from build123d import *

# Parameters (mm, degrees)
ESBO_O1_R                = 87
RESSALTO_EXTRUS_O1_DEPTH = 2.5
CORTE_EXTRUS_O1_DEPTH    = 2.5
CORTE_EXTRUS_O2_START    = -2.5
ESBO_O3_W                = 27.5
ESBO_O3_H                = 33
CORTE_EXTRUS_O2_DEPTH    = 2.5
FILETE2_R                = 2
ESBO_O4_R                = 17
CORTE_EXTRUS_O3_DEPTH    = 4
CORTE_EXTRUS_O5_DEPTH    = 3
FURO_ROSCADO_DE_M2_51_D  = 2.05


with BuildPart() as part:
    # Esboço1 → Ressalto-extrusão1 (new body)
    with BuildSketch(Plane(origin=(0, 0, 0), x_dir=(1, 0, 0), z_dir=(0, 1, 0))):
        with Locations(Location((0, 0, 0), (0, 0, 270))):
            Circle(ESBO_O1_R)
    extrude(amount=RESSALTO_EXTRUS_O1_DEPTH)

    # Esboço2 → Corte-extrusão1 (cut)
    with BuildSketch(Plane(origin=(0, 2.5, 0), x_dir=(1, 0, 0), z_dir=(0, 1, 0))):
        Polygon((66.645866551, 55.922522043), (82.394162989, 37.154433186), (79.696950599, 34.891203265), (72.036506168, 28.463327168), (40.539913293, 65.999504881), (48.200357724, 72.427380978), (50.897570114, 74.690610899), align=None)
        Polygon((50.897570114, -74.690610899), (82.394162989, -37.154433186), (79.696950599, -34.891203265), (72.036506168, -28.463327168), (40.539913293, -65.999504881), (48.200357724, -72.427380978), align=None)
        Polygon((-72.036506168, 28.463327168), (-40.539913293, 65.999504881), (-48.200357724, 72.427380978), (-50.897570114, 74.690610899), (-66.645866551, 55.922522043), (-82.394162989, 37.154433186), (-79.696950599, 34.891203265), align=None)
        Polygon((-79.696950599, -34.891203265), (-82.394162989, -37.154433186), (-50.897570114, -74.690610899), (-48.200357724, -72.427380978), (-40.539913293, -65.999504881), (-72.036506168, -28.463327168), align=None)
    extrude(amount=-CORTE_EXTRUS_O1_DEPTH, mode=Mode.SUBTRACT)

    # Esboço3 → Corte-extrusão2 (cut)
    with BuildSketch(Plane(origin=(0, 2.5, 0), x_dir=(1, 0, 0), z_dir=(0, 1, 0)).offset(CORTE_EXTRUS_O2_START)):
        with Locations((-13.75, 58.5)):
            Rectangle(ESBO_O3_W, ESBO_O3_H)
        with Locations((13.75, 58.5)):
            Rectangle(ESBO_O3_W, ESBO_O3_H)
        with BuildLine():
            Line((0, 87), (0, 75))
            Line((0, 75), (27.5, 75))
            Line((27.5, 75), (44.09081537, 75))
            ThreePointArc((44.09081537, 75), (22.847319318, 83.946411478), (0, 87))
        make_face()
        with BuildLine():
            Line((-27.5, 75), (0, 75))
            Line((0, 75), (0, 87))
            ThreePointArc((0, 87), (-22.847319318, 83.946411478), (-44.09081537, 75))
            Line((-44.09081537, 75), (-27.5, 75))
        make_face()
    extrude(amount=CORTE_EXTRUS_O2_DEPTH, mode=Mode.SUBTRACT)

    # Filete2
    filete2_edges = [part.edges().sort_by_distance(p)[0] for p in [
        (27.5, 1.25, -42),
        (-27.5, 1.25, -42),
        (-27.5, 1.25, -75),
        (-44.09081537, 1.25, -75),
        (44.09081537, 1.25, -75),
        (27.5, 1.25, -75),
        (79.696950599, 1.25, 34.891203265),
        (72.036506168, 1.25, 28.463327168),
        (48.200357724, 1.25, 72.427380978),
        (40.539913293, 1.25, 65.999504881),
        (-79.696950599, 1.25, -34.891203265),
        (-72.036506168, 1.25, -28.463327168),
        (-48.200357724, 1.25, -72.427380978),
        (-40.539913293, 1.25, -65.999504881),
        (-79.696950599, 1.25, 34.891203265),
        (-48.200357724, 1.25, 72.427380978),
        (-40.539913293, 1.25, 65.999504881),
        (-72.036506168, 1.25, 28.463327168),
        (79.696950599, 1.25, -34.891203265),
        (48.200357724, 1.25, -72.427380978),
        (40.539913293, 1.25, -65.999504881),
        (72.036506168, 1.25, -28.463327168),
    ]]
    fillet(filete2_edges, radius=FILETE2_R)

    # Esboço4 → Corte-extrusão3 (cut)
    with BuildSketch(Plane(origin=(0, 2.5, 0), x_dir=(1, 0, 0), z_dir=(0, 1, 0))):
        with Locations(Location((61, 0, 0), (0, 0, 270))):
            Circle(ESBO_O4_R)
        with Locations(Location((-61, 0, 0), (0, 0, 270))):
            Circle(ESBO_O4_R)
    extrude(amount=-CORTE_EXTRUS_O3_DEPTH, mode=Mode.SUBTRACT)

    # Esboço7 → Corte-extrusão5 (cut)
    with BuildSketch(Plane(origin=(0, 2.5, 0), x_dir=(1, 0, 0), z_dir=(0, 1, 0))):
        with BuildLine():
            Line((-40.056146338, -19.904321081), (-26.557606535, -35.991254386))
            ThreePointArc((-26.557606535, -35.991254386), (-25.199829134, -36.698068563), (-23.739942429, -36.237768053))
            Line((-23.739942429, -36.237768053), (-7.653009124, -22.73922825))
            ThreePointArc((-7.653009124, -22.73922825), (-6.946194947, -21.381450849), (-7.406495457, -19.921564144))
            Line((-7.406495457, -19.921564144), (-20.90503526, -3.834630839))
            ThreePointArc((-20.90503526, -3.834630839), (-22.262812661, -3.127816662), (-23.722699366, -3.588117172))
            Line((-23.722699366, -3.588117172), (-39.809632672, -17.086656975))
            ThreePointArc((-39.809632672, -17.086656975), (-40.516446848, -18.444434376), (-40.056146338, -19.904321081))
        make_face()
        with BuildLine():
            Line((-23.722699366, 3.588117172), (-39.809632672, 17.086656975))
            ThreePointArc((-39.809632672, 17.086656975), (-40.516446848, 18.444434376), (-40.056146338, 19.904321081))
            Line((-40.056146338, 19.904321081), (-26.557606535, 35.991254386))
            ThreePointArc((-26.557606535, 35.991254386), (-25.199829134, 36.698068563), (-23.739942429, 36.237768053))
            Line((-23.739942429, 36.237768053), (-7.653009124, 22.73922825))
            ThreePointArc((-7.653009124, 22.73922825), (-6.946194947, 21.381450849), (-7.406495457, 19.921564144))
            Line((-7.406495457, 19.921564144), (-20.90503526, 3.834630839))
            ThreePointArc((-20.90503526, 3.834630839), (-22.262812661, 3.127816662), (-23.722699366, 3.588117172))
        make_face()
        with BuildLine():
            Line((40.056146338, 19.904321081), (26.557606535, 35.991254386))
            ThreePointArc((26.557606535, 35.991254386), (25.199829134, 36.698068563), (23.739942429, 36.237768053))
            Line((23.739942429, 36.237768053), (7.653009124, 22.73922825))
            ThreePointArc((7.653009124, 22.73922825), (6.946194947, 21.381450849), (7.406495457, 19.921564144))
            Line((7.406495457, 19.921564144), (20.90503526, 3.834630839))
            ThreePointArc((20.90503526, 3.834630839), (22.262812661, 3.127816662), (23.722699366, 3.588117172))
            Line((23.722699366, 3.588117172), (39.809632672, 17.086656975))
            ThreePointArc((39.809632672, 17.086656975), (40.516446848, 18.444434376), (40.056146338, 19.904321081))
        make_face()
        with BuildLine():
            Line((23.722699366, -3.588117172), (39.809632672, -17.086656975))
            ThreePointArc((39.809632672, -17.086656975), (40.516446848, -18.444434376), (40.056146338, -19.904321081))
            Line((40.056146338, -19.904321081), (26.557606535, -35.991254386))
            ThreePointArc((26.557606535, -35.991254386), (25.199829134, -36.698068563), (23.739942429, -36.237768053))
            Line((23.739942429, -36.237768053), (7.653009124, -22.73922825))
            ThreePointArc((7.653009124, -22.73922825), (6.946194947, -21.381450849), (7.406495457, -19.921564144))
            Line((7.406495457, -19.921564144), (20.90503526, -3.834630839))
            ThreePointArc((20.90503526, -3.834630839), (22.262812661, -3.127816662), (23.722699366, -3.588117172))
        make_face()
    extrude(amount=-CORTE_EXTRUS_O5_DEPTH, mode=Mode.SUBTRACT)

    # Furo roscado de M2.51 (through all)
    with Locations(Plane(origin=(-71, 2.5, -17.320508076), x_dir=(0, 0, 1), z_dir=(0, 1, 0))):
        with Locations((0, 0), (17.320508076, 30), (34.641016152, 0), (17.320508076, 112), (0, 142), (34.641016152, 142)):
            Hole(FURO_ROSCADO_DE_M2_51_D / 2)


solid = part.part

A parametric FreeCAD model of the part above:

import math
import FreeCAD as App
import Part
import Sketcher
Q = App.Units.Quantity


def edges_at(feature, points):
    """Names of the edges that pass closest to the given points."""
    edges = feature.Shape.Edges
    near = lambda p: min(range(len(edges)), key=lambda i: edges[i].distToShape(Part.Vertex(*p))[0])
    return sorted({f"Edge{near(p) + 1}" for p in points})


def add_polygon(sketch, points):
    """Adds a closed chain of lines whose ends are joined by coincident constraints."""
    first, n = sketch.GeometryCount, len(points)
    for a, b in zip(points, points[1:] + points[:1]):
        sketch.addGeometry(Part.LineSegment(App.Vector(*a, 0), App.Vector(*b, 0)), False)
    for i in range(n):
        sketch.addConstraint(Sketcher.Constraint("Coincident", first + i, 2, first + (i + 1) % n, 1))

doc = App.newDocument("Part")
body = doc.addObject("PartDesign::Body", "Body")

# Sketch on XZ plane
sketch1 = doc.addObject("Sketcher::SketchObject", "Sketch")
body.addObject(sketch1)
sketch1.AttachmentSupport = (doc.XZ_Plane, [""])
sketch1.MapMode = "FlatFace"
sketch1.addGeometry(Part.Circle(App.Vector(0, 0, 0), App.Vector(0, 0, 1), 87), False)
sketch1.addConstraint([
    Sketcher.Constraint("Coincident", 0, 3, -1, 1),
    Sketcher.Constraint("Diameter", 0, 174.0),
])
pad1 = doc.addObject("PartDesign::Pad", "Pad")
body.addObject(pad1)
pad1.Profile = sketch1
pad1.Length = 2.5
pad1.Reversed = True

# Sketch on XZ plane
sketch2 = doc.addObject("Sketcher::SketchObject", "Sketch001")
body.addObject(sketch2)
sketch2.AttachmentSupport = (doc.XZ_Plane, [""])
sketch2.MapMode = "FlatFace"
sketch2.AttachmentOffset = App.Placement(App.Vector(0, 0, -2.5), App.Rotation())
add_polygon(sketch2, [(82.4, -37.2), (66.6, -55.9), (50.9, -74.7), (48.2, -72.4), (40.5, -66), (72, -28.5), (79.7, -34.9)])  # lines 0-6
add_polygon(sketch2, [(50.9, 74.7), (82.4, 37.2), (79.7, 34.9), (72, 28.5), (40.5, 66), (48.2, 72.4)])  # lines 7-12
add_polygon(sketch2, [(-72, -28.5), (-40.5, -66), (-48.2, -72.4), (-50.9, -74.7), (-66.6, -55.9), (-82.4, -37.2), (-79.7, -34.9)])  # lines 13-19
add_polygon(sketch2, [(-79.7, 34.9), (-82.4, 37.2), (-50.9, 74.7), (-48.2, 72.4), (-40.5, 66), (-72, 28.5)])  # lines 20-25
sketch2.addConstraint([
    Sketcher.Constraint("Symmetric", 10, 2, 13, 2, -1, 1),
    Sketcher.Constraint("Symmetric", 11, 2, 14, 2, -1, 1),
    Sketcher.Constraint("Symmetric", 12, 2, 15, 2, -1, 1),
    Sketcher.Constraint("Symmetric", 7, 2, 17, 2, -1, 1),
    Sketcher.Constraint("Symmetric", 8, 2, 18, 2, -1, 1),
    Sketcher.Constraint("Symmetric", 9, 2, 19, 2, -1, 1),
    Sketcher.Constraint("Symmetric", 6, 2, 20, 2, -1, 1),
    Sketcher.Constraint("Symmetric", 1, 2, 21, 2, -1, 1),
    Sketcher.Constraint("Symmetric", 2, 2, 22, 2, -1, 1),
    Sketcher.Constraint("Symmetric", 3, 2, 23, 2, -1, 1),
    Sketcher.Constraint("Symmetric", 4, 2, 24, 2, -1, 1),
    Sketcher.Constraint("Symmetric", 5, 2, 25, 2, -1, 1),
    Sketcher.Constraint("Symmetric", 3, 2, 13, 2, -2),
    Sketcher.Constraint("Symmetric", 2, 2, 14, 2, -2),
    Sketcher.Constraint("Symmetric", 1, 2, 15, 2, -2),
    Sketcher.Constraint("Symmetric", 0, 2, 16, 2, -2),
    Sketcher.Constraint("Symmetric", 6, 2, 17, 2, -2),
    Sketcher.Constraint("Symmetric", 5, 2, 18, 2, -2),
    Sketcher.Constraint("Symmetric", 4, 2, 19, 2, -2),
    Sketcher.Constraint("Parallel", 0, 1),
    Sketcher.Constraint("Perpendicular", 1, 2),
    Sketcher.Constraint("Parallel", 2, 3),
    Sketcher.Constraint("Perpendicular", 3, 4),
    Sketcher.Constraint("Perpendicular", 4, 5),
    Sketcher.Constraint("Parallel", 5, 6),
    Sketcher.Constraint("Equal", 0, 1),
    Sketcher.Constraint("Equal", 3, 5),
    Sketcher.Constraint("Angle", 0, Q("-130 deg")),
    Sketcher.Constraint("Distance", 3, 10.0),
    Sketcher.Constraint("Distance", 4, 49.0),
    Sketcher.Constraint("Distance", 2, 3.520961),
    Sketcher.Constraint("DistanceX", -1, 1, 1, 2, 50.89757),
    Sketcher.Constraint("DistanceY", 1, 2, -1, 1, 74.690611),
])
pocket1 = doc.addObject("PartDesign::Pocket", "Pocket")
body.addObject(pocket1)
pocket1.Profile = sketch2
pocket1.Length = 2.5
pocket1.Reversed = True

# Sketch on XZ plane
sketch3 = doc.addObject("Sketcher::SketchObject", "Sketch002")
body.addObject(sketch3)
sketch3.AttachmentSupport = (doc.XZ_Plane, [""])
sketch3.MapMode = "FlatFace"
sketch3.addGeometry([
    Part.LineSegment(App.Vector(-28, -75, 0), App.Vector(-28, -42, 0)),  # 0
    Part.LineSegment(App.Vector(-28, -42, 0), App.Vector(28, -42, 0)),  # 1
    Part.LineSegment(App.Vector(28, -42, 0), App.Vector(28, -75, 0)),  # 2
    Part.LineSegment(App.Vector(28, -75, 0), App.Vector(44, -75, 0)),  # 3
    Part.ArcOfCircle(Part.Circle(App.Vector(0, 0, 0), App.Vector(0, 0, 1), 87), math.radians(-90), math.radians(-60)),  # 4
    Part.ArcOfCircle(Part.Circle(App.Vector(0, 0, 0), App.Vector(0, 0, 1), 87), math.radians(-120), math.radians(-90)),  # 5
    Part.LineSegment(App.Vector(-44, -75, 0), App.Vector(-28, -75, 0)),  # 6
], False)
sketch3.addConstraint([
    Sketcher.Constraint("Coincident", 0, 2, 1, 1),
    Sketcher.Constraint("Coincident", 1, 2, 2, 1),
    Sketcher.Constraint("Coincident", 2, 2, 3, 1),
    Sketcher.Constraint("Coincident", 3, 2, 4, 2),
    Sketcher.Constraint("Tangent", 4, 1, 5, 2),
    Sketcher.Constraint("Coincident", 5, 1, 6, 1),
    Sketcher.Constraint("Coincident", 6, 2, 0, 1),
    Sketcher.Constraint("Vertical", 0),
    Sketcher.Constraint("Horizontal", 1),
    Sketcher.Constraint("Vertical", 2),
    Sketcher.Constraint("Horizontal", 3),
    Sketcher.Constraint("Horizontal", 6),
    Sketcher.Constraint("Coincident", 4, 3, -1, 1),
    Sketcher.Constraint("Equal", 4, 5),
    Sketcher.Constraint("Symmetric", 2, 2, 6, 2, -2),
    Sketcher.Constraint("PointOnObject", 4, 1, -2),
    Sketcher.Constraint("Radius", 4, 87.0),
    Sketcher.Constraint("DistanceX", 1, 1, 1, 2, 55.0),
    Sketcher.Constraint("DistanceY", 0, 1, 0, 2, 33.0),
    Sketcher.Constraint("DistanceY", 0, 2, -1, 1, 42.0),
])
pocket2 = doc.addObject("PartDesign::Pocket", "Pocket001")
body.addObject(pocket2)
pocket2.Profile = sketch3
pocket2.Length = 2.5
doc.recompute()

fillet = doc.addObject("PartDesign::Fillet", "Fillet")
body.addObject(fillet)
fillet.Base = (pocket2, edges_at(pocket2, [
    (27.5, 1.25, -42),
    (-27.5, 1.25, -42),
    (-27.5, 1.25, -75),
    (-44.091, 1.25, -75),
    (44.091, 1.25, -75),
    (27.5, 1.25, -75),
    (79.697, 1.25, 34.891),
    (72.037, 1.25, 28.463),
    (48.2, 1.25, 72.427),
    (40.54, 1.25, 66),
    (-79.697, 1.25, -34.891),
    (-72.037, 1.25, -28.463),
    (-48.2, 1.25, -72.427),
    (-40.54, 1.25, -66),
    (-79.697, 1.25, 34.891),
    (-48.2, 1.25, 72.427),
    (-40.54, 1.25, 66),
    (-72.037, 1.25, 28.463),
    (79.697, 1.25, -34.891),
    (48.2, 1.25, -72.427),
    (40.54, 1.25, -66),
    (72.037, 1.25, -28.463),
]))
fillet.Radius = 2

# Sketch on XZ plane
sketch4 = doc.addObject("Sketcher::SketchObject", "Sketch003")
body.addObject(sketch4)
sketch4.AttachmentSupport = (doc.XZ_Plane, [""])
sketch4.MapMode = "FlatFace"
sketch4.AttachmentOffset = App.Placement(App.Vector(0, 0, -2.5), App.Rotation())
sketch4.addGeometry([
    Part.Circle(App.Vector(61, 0, 0), App.Vector(0, 0, 1), 17),
    Part.Circle(App.Vector(-61, 0, 0), App.Vector(0, 0, 1), 17),
], False)
sketch4.addConstraint([
    Sketcher.Constraint("Equal", 0, 1),
    Sketcher.Constraint("Symmetric", 0, 3, 1, 3, -1, 1),
    Sketcher.Constraint("PointOnObject", 0, 3, -1),
    Sketcher.Constraint("Diameter", 0, 34.0),
    Sketcher.Constraint("DistanceX", -1, 1, 0, 3, 61.0),
])
pocket3 = doc.addObject("PartDesign::Pocket", "Pocket002")
body.addObject(pocket3)
pocket3.Profile = sketch4
pocket3.Length = 4
pocket3.Reversed = True

# Sketch on XZ plane
sketch5 = doc.addObject("Sketcher::SketchObject", "Sketch004")
body.addObject(sketch5)
sketch5.AttachmentSupport = (doc.XZ_Plane, [""])
sketch5.MapMode = "FlatFace"
sketch5.AttachmentOffset = App.Placement(App.Vector(0, 0, -2.5), App.Rotation())
sketch5.addGeometry([
    Part.LineSegment(App.Vector(-40.1, 19.9, 0), App.Vector(-26.6, 36, 0)),  # 0
    Part.ArcOfCircle(Part.Circle(App.Vector(-25, 34.7, 0), App.Vector(0, 0, 1), 2), math.radians(50), math.radians(140)),  # 1
    Part.LineSegment(App.Vector(-23.7, 36.2, 0), App.Vector(-7.7, 22.7, 0)),  # 2
    Part.ArcOfCircle(Part.Circle(App.Vector(-8.9, 21.2, 0), App.Vector(0, 0, 1), 2), math.radians(-40), math.radians(50)),  # 3
    Part.LineSegment(App.Vector(-7.4, 19.9, 0), App.Vector(-20.9, 3.8, 0)),  # 4
    Part.ArcOfCircle(Part.Circle(App.Vector(-22.4, 5.1, 0), App.Vector(0, 0, 1), 2), math.radians(-130), math.radians(-40)),  # 5
    Part.LineSegment(App.Vector(-23.7, 3.6, 0), App.Vector(-39.8, 17.1, 0)),  # 6
    Part.ArcOfCircle(Part.Circle(App.Vector(-38.5, 18.6, 0), App.Vector(0, 0, 1), 2), math.radians(140), math.radians(230)),  # 7
    Part.LineSegment(App.Vector(-39.8, -17.1, 0), App.Vector(-23.7, -3.6, 0)),  # 8
    Part.ArcOfCircle(Part.Circle(App.Vector(-22.4, -5.1, 0), App.Vector(0, 0, 1), 2), math.radians(40), math.radians(130)),  # 9
    Part.LineSegment(App.Vector(-20.9, -3.8, 0), App.Vector(-7.4, -19.9, 0)),  # 10
    Part.ArcOfCircle(Part.Circle(App.Vector(-8.9, -21.2, 0), App.Vector(0, 0, 1), 2), math.radians(-50), math.radians(40)),  # 11
    Part.LineSegment(App.Vector(-7.7, -22.7, 0), App.Vector(-23.7, -36.2, 0)),  # 12
    Part.ArcOfCircle(Part.Circle(App.Vector(-25, -34.7, 0), App.Vector(0, 0, 1), 2), math.radians(-140), math.radians(-50)),  # 13
    Part.LineSegment(App.Vector(-26.6, -36, 0), App.Vector(-40.1, -19.9, 0)),  # 14
    Part.ArcOfCircle(Part.Circle(App.Vector(-38.5, -18.6, 0), App.Vector(0, 0, 1), 2), math.radians(130), math.radians(220)),  # 15
    Part.LineSegment(App.Vector(40.1, -19.9, 0), App.Vector(26.6, -36, 0)),  # 16
    Part.ArcOfCircle(Part.Circle(App.Vector(25, -34.7, 0), App.Vector(0, 0, 1), 2), math.radians(-130), math.radians(-40)),  # 17
    Part.LineSegment(App.Vector(23.7, -36.2, 0), App.Vector(7.7, -22.7, 0)),  # 18
    Part.ArcOfCircle(Part.Circle(App.Vector(8.9, -21.2, 0), App.Vector(0, 0, 1), 2), math.radians(140), math.radians(230)),  # 19
    Part.LineSegment(App.Vector(7.4, -19.9, 0), App.Vector(20.9, -3.8, 0)),  # 20
    Part.ArcOfCircle(Part.Circle(App.Vector(22.4, -5.1, 0), App.Vector(0, 0, 1), 2), math.radians(50), math.radians(140)),  # 21
    Part.LineSegment(App.Vector(23.7, -3.6, 0), App.Vector(39.8, -17.1, 0)),  # 22
    Part.ArcOfCircle(Part.Circle(App.Vector(38.5, -18.6, 0), App.Vector(0, 0, 1), 2), math.radians(-40), math.radians(50)),  # 23
    Part.LineSegment(App.Vector(39.8, 17.1, 0), App.Vector(23.7, 3.6, 0)),  # 24
    Part.ArcOfCircle(Part.Circle(App.Vector(22.4, 5.1, 0), App.Vector(0, 0, 1), 2), math.radians(-140), math.radians(-50)),  # 25
    Part.LineSegment(App.Vector(20.9, 3.8, 0), App.Vector(7.4, 19.9, 0)),  # 26
    Part.ArcOfCircle(Part.Circle(App.Vector(8.9, 21.2, 0), App.Vector(0, 0, 1), 2), math.radians(130), math.radians(220)),  # 27
    Part.LineSegment(App.Vector(7.7, 22.7, 0), App.Vector(23.7, 36.2, 0)),  # 28
    Part.ArcOfCircle(Part.Circle(App.Vector(25, 34.7, 0), App.Vector(0, 0, 1), 2), math.radians(40), math.radians(130)),  # 29
    Part.LineSegment(App.Vector(26.6, 36, 0), App.Vector(40.1, 19.9, 0)),  # 30
    Part.ArcOfCircle(Part.Circle(App.Vector(38.5, 18.6, 0), App.Vector(0, 0, 1), 2), math.radians(-50), math.radians(40)),  # 31
], False)
sketch5.addConstraint([
    Sketcher.Constraint("Tangent", 0, 2, 1, 2),
    Sketcher.Constraint("Tangent", 1, 1, 2, 1),
    Sketcher.Constraint("Tangent", 2, 2, 3, 2),
    Sketcher.Constraint("Tangent", 3, 1, 4, 1),
    Sketcher.Constraint("Tangent", 4, 2, 5, 2),
    Sketcher.Constraint("Tangent", 5, 1, 6, 1),
    Sketcher.Constraint("Tangent", 6, 2, 7, 2),
    Sketcher.Constraint("Tangent", 7, 1, 0, 1),
    Sketcher.Constraint("Tangent", 8, 2, 9, 2),
    Sketcher.Constraint("Tangent", 9, 1, 10, 1),
    Sketcher.Constraint("Tangent", 10, 2, 11, 2),
    Sketcher.Constraint("Tangent", 11, 1, 12, 1),
    Sketcher.Constraint("Tangent", 12, 2, 13, 2),
    Sketcher.Constraint("Tangent", 13, 1, 14, 1),
    Sketcher.Constraint("Tangent", 14, 2, 15, 2),
    Sketcher.Constraint("Tangent", 15, 1, 8, 1),
    Sketcher.Constraint("Tangent", 16, 2, 17, 2),
    Sketcher.Constraint("Tangent", 17, 1, 18, 1),
    Sketcher.Constraint("Tangent", 18, 2, 19, 2),
    Sketcher.Constraint("Tangent", 19, 1, 20, 1),
    Sketcher.Constraint("Tangent", 20, 2, 21, 2),
    Sketcher.Constraint("Tangent", 21, 1, 22, 1),
    Sketcher.Constraint("Tangent", 22, 2, 23, 2),
    Sketcher.Constraint("Tangent", 23, 1, 16, 1),
    Sketcher.Constraint("Tangent", 24, 2, 25, 2),
    Sketcher.Constraint("Tangent", 25, 1, 26, 1),
    Sketcher.Constraint("Tangent", 26, 2, 27, 2),
    Sketcher.Constraint("Tangent", 27, 1, 28, 1),
    Sketcher.Constraint("Tangent", 28, 2, 29, 2),
    Sketcher.Constraint("Tangent", 29, 1, 30, 1),
    Sketcher.Constraint("Tangent", 30, 2, 31, 2),
    Sketcher.Constraint("Tangent", 31, 1, 24, 1),
    Sketcher.Constraint("Equal", 1, 3),
    Sketcher.Constraint("Equal", 3, 5),
    Sketcher.Constraint("Equal", 5, 7),
    Sketcher.Constraint("Equal", 7, 9),
    Sketcher.Constraint("Equal", 9, 11),
    Sketcher.Constraint("Equal", 11, 13),
    Sketcher.Constraint("Equal", 13, 15),
    Sketcher.Constraint("Equal", 15, 17),
    Sketcher.Constraint("Equal", 17, 19),
    Sketcher.Constraint("Equal", 19, 21),
    Sketcher.Constraint("Equal", 21, 23),
    Sketcher.Constraint("Equal", 23, 25),
    Sketcher.Constraint("Equal", 25, 27),
    Sketcher.Constraint("Equal", 27, 29),
    Sketcher.Constraint("Equal", 29, 31),
    Sketcher.Constraint("Symmetric", 1, 3, 17, 3, -1, 1),
    Sketcher.Constraint("Symmetric", 3, 3, 19, 3, -1, 1),
    Sketcher.Constraint("Symmetric", 5, 3, 21, 3, -1, 1),
    Sketcher.Constraint("Symmetric", 7, 3, 23, 3, -1, 1),
    Sketcher.Constraint("Symmetric", 9, 3, 25, 3, -1, 1),
    Sketcher.Constraint("Symmetric", 11, 3, 27, 3, -1, 1),
    Sketcher.Constraint("Symmetric", 13, 3, 29, 3, -1, 1),
    Sketcher.Constraint("Symmetric", 15, 3, 31, 3, -1, 1),
    Sketcher.Constraint("Symmetric", 13, 3, 17, 3, -2),
    Sketcher.Constraint("Symmetric", 11, 3, 19, 3, -2),
    Sketcher.Constraint("Symmetric", 9, 3, 21, 3, -2),
    Sketcher.Constraint("Symmetric", 15, 3, 23, 3, -2),
    Sketcher.Constraint("Perpendicular", 0, 2),
    Sketcher.Constraint("Perpendicular", 2, 4),
    Sketcher.Constraint("Perpendicular", 4, 6),
    Sketcher.Constraint("Equal", 0, 2),
    Sketcher.Constraint("Radius", 1, 2.0),
    Sketcher.Constraint("Angle", 0, Q("50 deg")),
    Sketcher.Constraint("Distance", 0, 21.0),
    Sketcher.Constraint("DistanceX", 5, 1, -1, 1, 23.722699),
    Sketcher.Constraint("DistanceY", -1, 1, 1, 3, 34.705679),
])
pocket4 = doc.addObject("PartDesign::Pocket", "Pocket003")
body.addObject(pocket4)
pocket4.Profile = sketch5
pocket4.Length = 3
pocket4.Reversed = True

# Sketch on XZ plane
sketch6 = doc.addObject("Sketcher::SketchObject", "Sketch005")
body.addObject(sketch6)
sketch6.AttachmentSupport = (doc.XZ_Plane, [""])
sketch6.MapMode = "FlatFace"
sketch6.AttachmentOffset = App.Placement(App.Vector(0, 0, -2.5), App.Rotation())
sketch6.addGeometry([
    Part.Circle(App.Vector(-71, -17.3, 0), App.Vector(0, 0, 1), 1),  # 0
    Part.Circle(App.Vector(-41, 0, 0), App.Vector(0, 0, 1), 1),  # 1
    Part.Circle(App.Vector(-71, 17.3, 0), App.Vector(0, 0, 1), 1),  # 2
    Part.Circle(App.Vector(41, 0, 0), App.Vector(0, 0, 1), 1),  # 3
    Part.Circle(App.Vector(71, -17.3, 0), App.Vector(0, 0, 1), 1),  # 4
    Part.Circle(App.Vector(71, 17.3, 0), App.Vector(0, 0, 1), 1),  # 5
], False)
sketch6.addConstraint([
    Sketcher.Constraint("Equal", 0, 1),
    Sketcher.Constraint("Equal", 1, 2),
    Sketcher.Constraint("Equal", 2, 3),
    Sketcher.Constraint("Equal", 3, 4),
    Sketcher.Constraint("Equal", 4, 5),
    Sketcher.Constraint("Symmetric", 1, 3, 3, 3, -1, 1),
    Sketcher.Constraint("Symmetric", 2, 3, 4, 3, -1, 1),
    Sketcher.Constraint("Symmetric", 0, 3, 5, 3, -1, 1),
    Sketcher.Constraint("Symmetric", 0, 3, 4, 3, -2),
    Sketcher.Constraint("PointOnObject", 1, 3, -1),
    Sketcher.Constraint("Diameter", 0, 2.05),
    Sketcher.Constraint("DistanceX", 0, 3, -1, 1, 71.0),
    Sketcher.Constraint("DistanceX", 1, 3, -1, 1, 41.0),
    Sketcher.Constraint("DistanceY", 0, 3, -1, 1, 17.320508),
])
doc.recompute()
hole = doc.addObject("PartDesign::Hole", "Hole")
body.addObject(hole)
hole.Profile = sketch6
hole.ThreadType = "None"
hole.Diameter = 2.05
hole.DepthType = "ThroughAll"
hole.Reversed = True

doc.recompute()
